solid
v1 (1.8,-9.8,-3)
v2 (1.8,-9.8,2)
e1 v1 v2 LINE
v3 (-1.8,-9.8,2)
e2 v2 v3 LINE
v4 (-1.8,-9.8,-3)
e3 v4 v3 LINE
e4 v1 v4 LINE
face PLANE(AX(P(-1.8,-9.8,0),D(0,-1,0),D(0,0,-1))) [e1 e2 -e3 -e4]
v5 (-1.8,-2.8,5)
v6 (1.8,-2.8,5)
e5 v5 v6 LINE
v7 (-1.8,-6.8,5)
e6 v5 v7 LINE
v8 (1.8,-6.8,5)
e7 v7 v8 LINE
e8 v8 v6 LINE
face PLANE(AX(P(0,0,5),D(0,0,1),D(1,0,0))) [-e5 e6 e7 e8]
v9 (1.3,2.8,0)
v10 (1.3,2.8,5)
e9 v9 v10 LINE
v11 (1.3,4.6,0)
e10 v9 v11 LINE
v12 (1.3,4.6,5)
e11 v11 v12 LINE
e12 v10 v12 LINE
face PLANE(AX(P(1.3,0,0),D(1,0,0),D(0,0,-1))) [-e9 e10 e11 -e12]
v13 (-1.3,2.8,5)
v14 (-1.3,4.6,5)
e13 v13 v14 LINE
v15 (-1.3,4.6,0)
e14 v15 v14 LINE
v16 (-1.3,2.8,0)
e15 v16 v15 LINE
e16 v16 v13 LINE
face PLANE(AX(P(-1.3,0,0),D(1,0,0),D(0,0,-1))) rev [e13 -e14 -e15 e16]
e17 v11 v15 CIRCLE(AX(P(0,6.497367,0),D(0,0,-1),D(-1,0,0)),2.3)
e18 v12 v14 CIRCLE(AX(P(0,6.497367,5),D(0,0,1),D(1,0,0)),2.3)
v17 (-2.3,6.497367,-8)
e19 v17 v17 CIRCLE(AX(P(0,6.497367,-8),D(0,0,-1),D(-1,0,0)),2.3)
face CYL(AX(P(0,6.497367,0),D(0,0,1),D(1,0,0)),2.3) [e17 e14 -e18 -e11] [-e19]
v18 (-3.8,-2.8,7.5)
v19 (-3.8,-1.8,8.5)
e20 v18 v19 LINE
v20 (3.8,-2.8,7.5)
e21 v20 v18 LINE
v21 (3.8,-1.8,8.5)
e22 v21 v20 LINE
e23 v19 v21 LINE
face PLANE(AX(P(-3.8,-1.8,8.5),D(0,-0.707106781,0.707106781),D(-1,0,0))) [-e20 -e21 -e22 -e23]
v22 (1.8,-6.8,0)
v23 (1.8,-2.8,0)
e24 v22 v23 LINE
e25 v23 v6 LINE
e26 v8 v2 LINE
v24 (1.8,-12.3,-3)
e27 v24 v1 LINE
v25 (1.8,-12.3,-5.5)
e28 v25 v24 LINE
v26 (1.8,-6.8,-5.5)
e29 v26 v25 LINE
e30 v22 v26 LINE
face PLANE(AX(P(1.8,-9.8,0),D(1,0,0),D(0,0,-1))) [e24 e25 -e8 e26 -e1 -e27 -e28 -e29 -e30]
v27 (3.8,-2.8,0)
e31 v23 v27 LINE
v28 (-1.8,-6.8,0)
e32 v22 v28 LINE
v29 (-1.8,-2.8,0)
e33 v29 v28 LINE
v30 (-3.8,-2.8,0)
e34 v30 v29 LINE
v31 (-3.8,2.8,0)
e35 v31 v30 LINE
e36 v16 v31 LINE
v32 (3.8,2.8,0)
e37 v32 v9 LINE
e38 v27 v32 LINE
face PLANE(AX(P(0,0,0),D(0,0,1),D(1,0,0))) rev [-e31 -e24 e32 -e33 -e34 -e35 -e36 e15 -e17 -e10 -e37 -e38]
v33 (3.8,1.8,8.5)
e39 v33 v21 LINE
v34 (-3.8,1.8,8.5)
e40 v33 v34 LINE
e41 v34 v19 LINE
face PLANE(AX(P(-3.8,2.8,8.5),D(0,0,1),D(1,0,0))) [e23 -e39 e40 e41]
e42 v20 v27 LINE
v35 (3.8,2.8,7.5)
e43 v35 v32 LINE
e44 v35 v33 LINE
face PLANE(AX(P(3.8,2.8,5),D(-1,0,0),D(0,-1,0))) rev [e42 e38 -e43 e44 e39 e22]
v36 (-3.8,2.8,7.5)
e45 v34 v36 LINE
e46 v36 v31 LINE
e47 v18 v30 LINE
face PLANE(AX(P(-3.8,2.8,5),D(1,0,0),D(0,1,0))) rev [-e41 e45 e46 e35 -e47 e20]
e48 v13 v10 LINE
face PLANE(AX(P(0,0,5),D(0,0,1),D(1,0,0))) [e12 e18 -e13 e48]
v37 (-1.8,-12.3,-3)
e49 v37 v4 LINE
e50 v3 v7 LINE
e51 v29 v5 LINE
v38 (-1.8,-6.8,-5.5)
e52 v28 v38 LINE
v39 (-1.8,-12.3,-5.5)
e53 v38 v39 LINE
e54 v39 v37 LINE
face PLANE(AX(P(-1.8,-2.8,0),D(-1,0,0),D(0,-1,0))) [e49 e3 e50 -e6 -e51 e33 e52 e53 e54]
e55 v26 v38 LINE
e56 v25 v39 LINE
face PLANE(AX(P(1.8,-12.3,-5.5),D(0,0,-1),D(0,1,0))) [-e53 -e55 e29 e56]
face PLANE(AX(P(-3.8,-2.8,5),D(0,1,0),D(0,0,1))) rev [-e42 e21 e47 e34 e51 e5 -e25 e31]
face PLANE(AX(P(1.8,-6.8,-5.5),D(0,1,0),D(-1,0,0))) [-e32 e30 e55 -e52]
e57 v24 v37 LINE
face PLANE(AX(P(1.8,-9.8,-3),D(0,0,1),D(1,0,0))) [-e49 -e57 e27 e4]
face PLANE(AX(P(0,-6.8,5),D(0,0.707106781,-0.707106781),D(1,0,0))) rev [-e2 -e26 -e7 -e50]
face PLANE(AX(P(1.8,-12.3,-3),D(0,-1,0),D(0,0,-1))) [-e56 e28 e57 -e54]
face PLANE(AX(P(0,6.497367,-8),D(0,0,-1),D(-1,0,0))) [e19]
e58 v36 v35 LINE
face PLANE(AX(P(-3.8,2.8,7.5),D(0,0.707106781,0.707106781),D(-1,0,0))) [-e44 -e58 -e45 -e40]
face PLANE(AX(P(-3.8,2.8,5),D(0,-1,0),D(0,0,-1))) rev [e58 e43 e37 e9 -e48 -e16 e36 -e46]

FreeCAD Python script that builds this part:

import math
import FreeCAD as App
import Part
import Sketcher
from FreeCAD import Vector


def edges_at(feature, points):
    """Names of the edges that pass closest to the given points."""
    edges = feature.Shape.Edges
    near = lambda p: min(range(len(edges)), key=lambda i: edges[i].distToShape(Part.Vertex(*p))[0])
    return sorted({f"Edge{near(p) + 1}" for p in points})


def add_polygon(sketch, points):
    """Adds a closed chain of lines whose ends are joined by coincident constraints."""
    first, n = sketch.GeometryCount, len(points)
    for a, b in zip(points, points[1:] + points[:1]):
        sketch.addGeometry(Part.LineSegment(App.Vector(*a, 0), App.Vector(*b, 0)), False)
    for i in range(n):
        sketch.addConstraint(Sketcher.Constraint("Coincident", first + i, 2, first + (i + 1) % n, 1))

doc = App.newDocument("Part")
body = doc.addObject("PartDesign::Body", "Body")

sketch1 = body.newObject("Sketcher::SketchObject", "Sketch")
sketch1.AttachmentSupport = (doc.getObject("XY_Plane"), [""])
sketch1.MapMode = "FlatFace"
add_polygon(sketch1, [(-4, 3), (-4, -3), (4, -3), (4, 3)])
sketch1.addConstraint([
    Sketcher.Constraint("Vertical", 0),
    Sketcher.Constraint("Horizontal", 1),
    Sketcher.Constraint("Vertical", 2),
    Sketcher.Constraint("Horizontal", 3),
    Sketcher.Constraint("Symmetric", 0, 2, 2, 2, -1, 1),
    Sketcher.Constraint("DistanceX", 1, 1, 1, 2, 7.6),
    Sketcher.Constraint("DistanceY", 0, 2, 0, 1, 5.6),
])
pad1 = body.newObject("PartDesign::Pad", "Pad")
pad1.Profile = sketch1
pad1.Length = 5

sketch2 = body.newObject("Sketcher::SketchObject", "Sketch001")
sketch2.AttachmentSupport = (doc.getObject("XY_Plane"), [""])
sketch2.MapMode = "FlatFace"
sketch2.AttachmentOffset = App.Placement(Vector(0, 0, 5), App.Rotation())
sketch2.addGeometry([
    Part.ArcOfCircle(Part.Circle(Vector(0, 6.5, 0), Vector(0, 0, 1), 2.3), math.radians(-56), math.radians(236)),
    Part.LineSegment(Vector(-1.3, 4.6, 0), Vector(-1.3, 2.8, 0)),
    Part.LineSegment(Vector(-1.3, 2.8, 0), Vector(1.3, 2.8, 0)),
    Part.LineSegment(Vector(1.3, 2.8, 0), Vector(1.3, 4.6, 0)),
], False)
sketch2.addConstraint([
    Sketcher.Constraint("Coincident", 0, 2, 1, 1),
    Sketcher.Constraint("Coincident", 1, 2, 2, 1),
    Sketcher.Constraint("Coincident", 2, 2, 3, 1),
    Sketcher.Constraint("Coincident", 3, 2, 0, 1),
    Sketcher.Constraint("Vertical", 1),
    Sketcher.Constraint("Horizontal", 2),
    Sketcher.Constraint("Vertical", 3),
    Sketcher.Constraint("Symmetric", 0, 2, 3, 2, -2),
    Sketcher.Constraint("Radius", 0, 2.3),
    Sketcher.Constraint("DistanceX", 2, 1, 2, 2, 2.6),
    Sketcher.Constraint("DistanceY", 1, 2, 1, 1, 1.8),
    Sketcher.Constraint("DistanceY", -1, 1, 0, 2, 4.6),
])
pad2 = body.newObject("PartDesign::Pad", "Pad001")
pad2.Profile = sketch2
pad2.Length = 5
pad2.Reversed = True

sketch3 = body.newObject("Sketcher::SketchObject", "Sketch002")
sketch3.AttachmentSupport = (doc.getObject("XY_Plane"), [""])
sketch3.MapMode = "FlatFace"
sketch3.AttachmentOffset = App.Placement(Vector(0, 0, 5), App.Rotation())
add_polygon(sketch3, [(-1.8, -2.8), (-1.8, -9.8), (1.8, -9.8), (1.8, -2.8)])
sketch3.addConstraint([
    Sketcher.Constraint("Vertical", 0),
    Sketcher.Constraint("Horizontal", 1),
    Sketcher.Constraint("Vertical", 2),
    Sketcher.Constraint("Horizontal", 3),
    Sketcher.Constraint("DistanceY", 0, 2, 0, 1, 7.0),
    Sketcher.Constraint("DistanceX", 1, 1, 1, 2, 3.6),
    Sketcher.Constraint("DistanceX", 0, 2, -1, 1, 1.8),
    Sketcher.Constraint("DistanceY", 0, 2, -1, 1, 9.8),
])
pad3 = body.newObject("PartDesign::Pad", "Pad002")
pad3.Profile = sketch3
pad3.Length = 5
pad3.Reversed = True

sketch4 = body.newObject("Sketcher::SketchObject", "Sketch003")
sketch4.AttachmentSupport = (doc.getObject("XY_Plane"), [""])
sketch4.MapMode = "FlatFace"
sketch4.addGeometry(Part.Circle(Vector(0, 6.5, 0), Vector(0, 0, 1), 2.3), False)
sketch4.addConstraint([
    Sketcher.Constraint("PointOnObject", 0, 3, -2),
    Sketcher.Constraint("Diameter", 0, 4.6),
    Sketcher.Constraint("DistanceY", -1, 1, 0, 3, 6.497367),
])
pad4 = body.newObject("PartDesign::Pad", "Pad003")
pad4.Profile = sketch4
pad4.Length = 8
pad4.Reversed = True
doc.recompute()

chamfer = body.newObject("PartDesign::Chamfer", "Chamfer")
chamfer.Base = (pad4, edges_at(pad4, [(0, -9.8, 5)]))
chamfer.Size = 3

sketch5 = body.newObject("Sketcher::SketchObject", "Sketch004")
sketch5.AttachmentSupport = (doc.getObject("YZ_Plane"), [""])
sketch5.MapMode = "FlatFace"
sketch5.AttachmentOffset = App.Placement(Vector(0, 0, 3.8), App.Rotation())
add_polygon(sketch5, [(2.8, 8.5), (-2.8, 8.5), (-2.8, 5), (2.8, 5)])
sketch5.addConstraint([
    Sketcher.Constraint("Horizontal", 0),
    Sketcher.Constraint("Vertical", 1),
    Sketcher.Constraint("Horizontal", 2),
    Sketcher.Constraint("Vertical", 3),
    Sketcher.Constraint("DistanceX", 0, 2, 0, 1, 5.6),
    Sketcher.Constraint("DistanceY", 1, 2, 1, 1, 3.5),
    Sketcher.Constraint("DistanceY", -1, 1, 1, 2, 5.0),
    Sketcher.Constraint("DistanceX", 0, 2, -1, 1, 2.8),
])
pad5 = body.newObject("PartDesign::Pad", "Pad004")
pad5.Profile = sketch5
pad5.Length = 7.6
pad5.Reversed = True

sketch6 = body.newObject("Sketcher::SketchObject", "Sketch005")
sketch6.AttachmentSupport = (doc.getObject("YZ_Plane"), [""])
sketch6.MapMode = "FlatFace"
sketch6.AttachmentOffset = App.Placement(Vector(0, 0, -1.8), App.Rotation())
add_polygon(sketch6, [(-9.8, -3), (-9.8, 0), (-6.8, 0), (-6.8, -5.5), (-12.3, -5.5), (-12.3, -3)])
sketch6.addConstraint([
    Sketcher.Constraint("Vertical", 0),
    Sketcher.Constraint("Horizontal", 1),
    Sketcher.Constraint("Vertical", 2),
    Sketcher.Constraint("Horizontal", 3),
    Sketcher.Constraint("Vertical", 4),
    Sketcher.Constraint("Horizontal", 5),
    Sketcher.Constraint("PointOnObject", 0, 2, -1),
    Sketcher.Constraint("Equal", 1, 0),
    Sketcher.Constraint("Equal", 3, 2),
    Sketcher.Constraint("DistanceX", 1, 1, 1, 2, 3.0),
    Sketcher.Constraint("DistanceX", 3, 2, 3, 1, 5.5),
    Sketcher.Constraint("DistanceX", 0, 2, -1, 1, 9.8),
])
pad6 = body.newObject("PartDesign::Pad", "Pad005")
pad6.Profile = sketch6
pad6.Length = 3.6
doc.recompute()

chamfer2 = body.newObject("PartDesign::Chamfer", "Chamfer001")
chamfer2.Base = (pad6, edges_at(pad6, [(0, -2.8, 8.5), (0, 2.8, 8.5)]))
chamfer2.Size = 1

doc.recompute()
